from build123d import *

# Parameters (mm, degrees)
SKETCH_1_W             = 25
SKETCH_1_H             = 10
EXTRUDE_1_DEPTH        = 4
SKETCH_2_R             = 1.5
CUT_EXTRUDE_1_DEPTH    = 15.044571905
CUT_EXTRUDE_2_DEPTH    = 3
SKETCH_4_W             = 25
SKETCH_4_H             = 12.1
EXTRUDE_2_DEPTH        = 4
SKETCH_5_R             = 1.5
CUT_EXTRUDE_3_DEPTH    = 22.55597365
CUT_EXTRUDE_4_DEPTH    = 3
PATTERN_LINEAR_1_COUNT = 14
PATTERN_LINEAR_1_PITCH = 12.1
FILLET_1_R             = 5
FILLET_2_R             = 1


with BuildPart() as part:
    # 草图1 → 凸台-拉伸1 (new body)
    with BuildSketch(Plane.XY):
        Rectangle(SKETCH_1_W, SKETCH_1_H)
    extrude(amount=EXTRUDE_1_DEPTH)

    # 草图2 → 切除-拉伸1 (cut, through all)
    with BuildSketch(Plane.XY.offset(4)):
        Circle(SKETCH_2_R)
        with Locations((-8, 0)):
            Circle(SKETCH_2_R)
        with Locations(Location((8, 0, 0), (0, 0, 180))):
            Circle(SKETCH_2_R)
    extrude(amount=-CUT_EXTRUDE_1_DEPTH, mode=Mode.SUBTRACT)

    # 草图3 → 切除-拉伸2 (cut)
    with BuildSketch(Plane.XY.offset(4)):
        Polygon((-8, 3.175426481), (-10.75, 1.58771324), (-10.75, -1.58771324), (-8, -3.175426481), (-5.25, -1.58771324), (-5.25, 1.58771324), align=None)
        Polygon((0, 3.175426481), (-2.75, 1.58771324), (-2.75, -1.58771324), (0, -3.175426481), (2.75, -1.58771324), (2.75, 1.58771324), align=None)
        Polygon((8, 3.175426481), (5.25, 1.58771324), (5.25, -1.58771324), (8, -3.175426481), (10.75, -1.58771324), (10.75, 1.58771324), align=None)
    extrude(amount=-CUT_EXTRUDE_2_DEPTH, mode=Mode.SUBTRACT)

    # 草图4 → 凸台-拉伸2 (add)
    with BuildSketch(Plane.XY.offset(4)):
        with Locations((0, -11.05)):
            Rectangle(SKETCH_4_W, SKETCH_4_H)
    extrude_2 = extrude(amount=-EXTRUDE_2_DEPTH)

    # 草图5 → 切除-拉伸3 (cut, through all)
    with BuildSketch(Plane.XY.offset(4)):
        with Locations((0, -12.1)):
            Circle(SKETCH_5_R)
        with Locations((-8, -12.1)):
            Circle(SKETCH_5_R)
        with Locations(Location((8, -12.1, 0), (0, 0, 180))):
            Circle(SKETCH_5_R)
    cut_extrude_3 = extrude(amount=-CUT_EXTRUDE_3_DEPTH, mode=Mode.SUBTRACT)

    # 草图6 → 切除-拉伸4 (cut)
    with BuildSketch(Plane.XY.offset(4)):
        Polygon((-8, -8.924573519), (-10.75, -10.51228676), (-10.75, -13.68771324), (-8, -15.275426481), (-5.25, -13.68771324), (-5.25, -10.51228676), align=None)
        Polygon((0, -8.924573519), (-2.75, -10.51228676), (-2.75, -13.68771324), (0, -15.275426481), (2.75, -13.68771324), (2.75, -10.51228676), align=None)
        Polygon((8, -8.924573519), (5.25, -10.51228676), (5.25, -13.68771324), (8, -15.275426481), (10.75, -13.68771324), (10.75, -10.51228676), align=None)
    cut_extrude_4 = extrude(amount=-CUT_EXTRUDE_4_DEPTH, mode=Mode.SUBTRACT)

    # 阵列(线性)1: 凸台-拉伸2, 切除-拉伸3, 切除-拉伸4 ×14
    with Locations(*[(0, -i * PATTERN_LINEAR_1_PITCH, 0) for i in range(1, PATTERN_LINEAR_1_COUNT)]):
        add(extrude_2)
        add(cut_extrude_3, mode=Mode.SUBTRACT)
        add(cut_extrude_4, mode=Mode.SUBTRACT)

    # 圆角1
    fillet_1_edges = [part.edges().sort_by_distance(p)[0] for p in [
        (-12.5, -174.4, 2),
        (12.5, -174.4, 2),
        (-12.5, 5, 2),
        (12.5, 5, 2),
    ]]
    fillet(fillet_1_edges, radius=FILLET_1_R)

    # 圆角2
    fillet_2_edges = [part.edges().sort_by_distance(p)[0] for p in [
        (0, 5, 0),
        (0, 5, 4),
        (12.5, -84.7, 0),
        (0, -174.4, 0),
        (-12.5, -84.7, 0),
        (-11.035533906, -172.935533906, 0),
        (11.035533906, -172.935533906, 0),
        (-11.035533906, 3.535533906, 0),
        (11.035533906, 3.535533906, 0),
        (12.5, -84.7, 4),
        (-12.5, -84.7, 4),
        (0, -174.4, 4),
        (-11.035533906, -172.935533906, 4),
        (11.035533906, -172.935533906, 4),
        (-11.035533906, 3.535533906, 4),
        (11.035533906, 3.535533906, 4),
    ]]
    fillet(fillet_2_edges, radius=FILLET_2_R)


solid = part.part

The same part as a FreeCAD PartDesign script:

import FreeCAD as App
import Part
import Sketcher

V = App.Vector
Q = App.Units.Quantity


def edges_at(feature, points):
    """Names of the edges that pass closest to the given points."""
    edges = feature.Shape.Edges
    near = lambda p: min(range(len(edges)), key=lambda i: edges[i].distToShape(Part.Vertex(*p))[0])
    return sorted({f"Edge{near(p) + 1}" for p in points})


def add_polygon(sketch, points):
    """Adds a closed chain of lines whose ends are joined by coincident constraints."""
    first, n = sketch.GeometryCount, len(points)
    for a, b in zip(points, points[1:] + points[:1]):
        sketch.addGeometry(Part.LineSegment(App.Vector(*a, 0), App.Vector(*b, 0)), False)
    for i in range(n):
        sketch.addConstraint(Sketcher.Constraint("Coincident", first + i, 2, first + (i + 1) % n, 1))

doc = App.newDocument("Part")
body = doc.addObject("PartDesign::Body", "Body")

# Sketch on XY plane
sketch1 = body.newObject("Sketcher::SketchObject", "Sketch")
sketch1.AttachmentSupport = (doc.getObject("XY_Plane"), [""])
sketch1.MapMode = "FlatFace"
add_polygon(sketch1, [(-12, 5), (-12, -5), (12, -5), (12, 5)])  # lines 0-3
sketch1.addConstraint([
    Sketcher.Constraint("Vertical", 0),
    Sketcher.Constraint("Horizontal", 1),
    Sketcher.Constraint("Vertical", 2),
    Sketcher.Constraint("Horizontal", 3),
    Sketcher.Constraint("Symmetric", 0, 2, 2, 2, -1, 1),
    Sketcher.Constraint("DistanceX", 1, 1, 1, 2, 25.0),
    Sketcher.Constraint("DistanceY", 0, 2, 0, 1, 10.0),
])
pad1 = body.newObject("PartDesign::Pad", "Pad")
pad1.Profile = sketch1
pad1.Length = 4

# Sketch on XY plane
sketch2 = body.newObject("Sketcher::SketchObject", "Sketch001")
sketch2.AttachmentSupport = (doc.getObject("XY_Plane"), [""])
sketch2.MapMode = "FlatFace"
sketch2.AttachmentOffset = App.Placement(V(0, 0, 4), App.Rotation())
sketch2.addGeometry([
    Part.Circle(V(0, 0, 0), V(0, 0, 1), 1.5),
    Part.Circle(V(-8, 0, 0), V(0, 0, 1), 1.5),
    Part.Circle(V(8, 0, 0), V(0, 0, 1), 1.5),
], False)
sketch2.addConstraint([
    Sketcher.Constraint("Coincident", 0, 3, -1, 1),
    Sketcher.Constraint("Equal", 0, 1),
    Sketcher.Constraint("Equal", 1, 2),
    Sketcher.Constraint("Symmetric", 1, 3, 2, 3, -1, 1),
    Sketcher.Constraint("PointOnObject", 1, 3, -1),
    Sketcher.Constraint("Diameter", 0, 3.0),
    Sketcher.Constraint("DistanceX", 1, 3, -1, 1, 8.0),
])
pocket1 = body.newObject("PartDesign::Pocket", "Pocket")
pocket1.Profile = sketch2
pocket1.Type = "ThroughAll"

# Sketch on XY plane
sketch3 = body.newObject("Sketcher::SketchObject", "Sketch002")
sketch3.AttachmentSupport = (doc.getObject("XY_Plane"), [""])
sketch3.MapMode = "FlatFace"
sketch3.AttachmentOffset = App.Placement(V(0, 0, 4), App.Rotation())
add_polygon(sketch3, [(-8, 3.2), (-10.8, 1.6), (-10.8, -1.6), (-8, -3.2), (-5.2, -1.6), (-5.2, 1.6)])  # lines 0-5
add_polygon(sketch3, [(0, 3.2), (-2.8, 1.6), (-2.8, -1.6), (0, -3.2), (2.8, -1.6), (2.8, 1.6)])  # lines 6-11
add_polygon(sketch3, [(8, 3.2), (5.2, 1.6), (5.2, -1.6), (8, -3.2), (10.8, -1.6), (10.8, 1.6)])  # lines 12-17
sketch3.addConstraint([
    Sketcher.Constraint("Vertical", 1),
    Sketcher.Constraint("Vertical", 4),
    Sketcher.Constraint("Vertical", 7),
    Sketcher.Constraint("Vertical", 10),
    Sketcher.Constraint("Vertical", 13),
    Sketcher.Constraint("Vertical", 16),
    Sketcher.Constraint("Symmetric", 6, 2, 9, 2, -1, 1),
    Sketcher.Constraint("Symmetric", 8, 2, 11, 2, -1, 1),
    Sketcher.Constraint("Symmetric", 3, 2, 12, 2, -1, 1),
    Sketcher.Constraint("Symmetric", 5, 2, 14, 2, -1, 1),
    Sketcher.Constraint("Symmetric", 0, 2, 15, 2, -1, 1),
    Sketcher.Constraint("Symmetric", 2, 2, 17, 2, -1, 1),
    Sketcher.Constraint("Symmetric", 2, 2, 14, 2, -2),
    Sketcher.Constraint("PointOnObject", 8, 2, -2),
    Sketcher.Constraint("Parallel", 0, 3),
    Sketcher.Constraint("Parallel", 2, 5),
    Sketcher.Constraint("Parallel", 3, 6),
    Sketcher.Constraint("Parallel", 5, 8),
    Sketcher.Constraint("Parallel", 8, 11),
    Sketcher.Constraint("Parallel", 11, 14),
    Sketcher.Constraint("Parallel", 14, 17),
    Sketcher.Constraint("Horizontal", 1, 2, 3, 2),
    Sketcher.Constraint("Horizontal", 0, 2, 4, 2),
    Sketcher.Constraint("Horizontal", 4, 2, 6, 2),
    Sketcher.Constraint("Horizontal", 2, 2, 8, 2),
    Sketcher.Constraint("Angle", 0, Q("-150 deg")),
    Sketcher.Constraint("DistanceX", 2, 2, -1, 1, 8.0),
    Sketcher.Constraint("DistanceX", 1, 2, 3, 2, 5.5),
    Sketcher.Constraint("DistanceY", 1, 2, 1, 1, 3.175426),
])
pocket2 = body.newObject("PartDesign::Pocket", "Pocket001")
pocket2.Profile = sketch3
pocket2.Length = 3

# Sketch on XY plane
sketch4 = body.newObject("Sketcher::SketchObject", "Sketch003")
sketch4.AttachmentSupport = (doc.getObject("XY_Plane"), [""])
sketch4.MapMode = "FlatFace"
sketch4.AttachmentOffset = App.Placement(V(0, 0, 4), App.Rotation())
add_polygon(sketch4, [(-12, -5), (-12, -17), (12, -17), (12, -5)])  # lines 0-3
sketch4.addConstraint([
    Sketcher.Constraint("Vertical", 0),
    Sketcher.Constraint("Horizontal", 1),
    Sketcher.Constraint("Vertical", 2),
    Sketcher.Constraint("Horizontal", 3),
    Sketcher.Constraint("DistanceX", 1, 1, 1, 2, 25.0),
    Sketcher.Constraint("DistanceY", 0, 2, 0, 1, 12.1),
    Sketcher.Constraint("DistanceY", 2, 2, -1, 1, 5.0),
    Sketcher.Constraint("DistanceX", 0, 2, -1, 1, 12.5),
])
pad2 = body.newObject("PartDesign::Pad", "Pad001")
pad2.Profile = sketch4
pad2.Length = 4
pad2.Reversed = True

# Sketch on XY plane
sketch5 = body.newObject("Sketcher::SketchObject", "Sketch004")
sketch5.AttachmentSupport = (doc.getObject("XY_Plane"), [""])
sketch5.MapMode = "FlatFace"
sketch5.AttachmentOffset = App.Placement(V(0, 0, 4), App.Rotation())
sketch5.addGeometry([
    Part.Circle(V(0, -12.1, 0), V(0, 0, 1), 1.5),
    Part.Circle(V(-8, -12.1, 0), V(0, 0, 1), 1.5),
    Part.Circle(V(8, -12.1, 0), V(0, 0, 1), 1.5),
], False)
sketch5.addConstraint([
    Sketcher.Constraint("Equal", 0, 1),
    Sketcher.Constraint("Equal", 1, 2),
    Sketcher.Constraint("Symmetric", 1, 3, 2, 3, -2),
    Sketcher.Constraint("PointOnObject", 0, 3, -2),
    Sketcher.Constraint("Horizontal", 0, 3, 1, 3),
    Sketcher.Constraint("Diameter", 0, 3.0),
    Sketcher.Constraint("DistanceX", 1, 3, -1, 1, 8.0),
    Sketcher.Constraint("DistanceY", 0, 3, -1, 1, 12.1),
])
pocket3 = body.newObject("PartDesign::Pocket", "Pocket002")
pocket3.Profile = sketch5
pocket3.Type = "ThroughAll"

# Sketch on XY plane
sketch6 = body.newObject("Sketcher::SketchObject", "Sketch005")
sketch6.AttachmentSupport = (doc.getObject("XY_Plane"), [""])
sketch6.MapMode = "FlatFace"
sketch6.AttachmentOffset = App.Placement(V(0, 0, 4), App.Rotation())
add_polygon(sketch6, [(-8, -8.9), (-10.8, -10.5), (-10.8, -13.7), (-8, -15.3), (-5.2, -13.7), (-5.2, -10.5)])  # lines 0-5
add_polygon(sketch6, [(0, -8.9), (-2.8, -10.5), (-2.8, -13.7), (0, -15.3), (2.8, -13.7), (2.8, -10.5)])  # lines 6-11
add_polygon(sketch6, [(8, -8.9), (5.2, -10.5), (5.2, -13.7), (8, -15.3), (10.8, -13.7), (10.8, -10.5)])  # lines 12-17
sketch6.addConstraint([
    Sketcher.Constraint("Vertical", 1),
    Sketcher.Constraint("Vertical", 4),
    Sketcher.Constraint("Vertical", 7),
    Sketcher.Constraint("Vertical", 10),
    Sketcher.Constraint("Vertical", 13),
    Sketcher.Constraint("Vertical", 16),
    Sketcher.Constraint("Symmetric", 7, 2, 9, 2, -2),
    Sketcher.Constraint("Symmetric", 4, 2, 12, 2, -2),
    Sketcher.Constraint("Symmetric", 2, 2, 14, 2, -2),
    Sketcher.Constraint("Symmetric", 1, 2, 15, 2, -2),
    Sketcher.Constraint("Symmetric", 5, 2, 17, 2, -2),
    Sketcher.Constraint("PointOnObject", 8, 2, -2),
    Sketcher.Constraint("PointOnObject", 11, 2, -2),
    Sketcher.Constraint("Parallel", 0, 3),
    Sketcher.Constraint("Parallel", 2, 5),
    Sketcher.Constraint("Parallel", 3, 6),
    Sketcher.Constraint("Parallel", 5, 8),
    Sketcher.Constraint("Parallel", 6, 9),
    Sketcher.Constraint("Parallel", 8, 11),
    Sketcher.Constraint("Parallel", 11, 14),
    Sketcher.Constraint("Parallel", 14, 17),
    Sketcher.Constraint("Horizontal", 1, 2, 3, 2),
    Sketcher.Constraint("Horizontal", 0, 2, 4, 2),
    Sketcher.Constraint("Horizontal", 4, 2, 6, 2),
    Sketcher.Constraint("Horizontal", 3, 2, 7, 2),
    Sketcher.Constraint("Horizontal", 2, 2, 8, 2),
    Sketcher.Constraint("Angle", 0, Q("-150 deg")),
    Sketcher.Constraint("DistanceX", 2, 2, -1, 1, 8.0),
    Sketcher.Constraint("DistanceX", 1, 2, 3, 2, 5.5),
    Sketcher.Constraint("DistanceY", 1, 2, 1, 1, 3.175426),
    Sketcher.Constraint("DistanceY", 0, 2, -1, 1, 10.512287),
])
pocket4 = body.newObject("PartDesign::Pocket", "Pocket003")
pocket4.Profile = sketch6
pocket4.Length = 3
doc.recompute()

linearpattern = body.newObject("PartDesign::LinearPattern", "LinearPattern")
linearpattern.Originals = [pad2, pocket3, pocket4]
linearpattern.Direction = (doc.getObject("Y_Axis"), [""])
linearpattern.Mode = "offset"
linearpattern.Offset = 12.1
linearpattern.Occurrences = 14
linearpattern.Reversed = True
body.Tip = linearpattern
doc.recompute()

fillet = body.newObject("PartDesign::Fillet", "Fillet")
fillet.Base = (linearpattern, edges_at(linearpattern, [
    (-12.5, -174.4, 2),
    (12.5, -174.4, 2),
    (-12.5, 5, 2),
    (12.5, 5, 2),
]))
fillet.Radius = 5
doc.recompute()

fillet2 = body.newObject("PartDesign::Fillet", "Fillet001")
fillet2.Base = (fillet, edges_at(fillet, [
    (0, 5, 0),
    (0, 5, 4),
    (12.5, -84.7, 0),
    (0, -174.4, 0),
    (-12.5, -84.7, 0),
    (-11.036, -172.936, 0),
    (11.036, -172.936, 0),
    (-11.036, 3.536, 0),
    (11.036, 3.536, 0),
    (12.5, -84.7, 4),
    (-12.5, -84.7, 4),
    (0, -174.4, 4),
    (-11.036, -172.936, 4),
    (11.036, -172.936, 4),
    (-11.036, 3.536, 4),
    (11.036, 3.536, 4),
]))
fillet2.Radius = 1

doc.recompute()
